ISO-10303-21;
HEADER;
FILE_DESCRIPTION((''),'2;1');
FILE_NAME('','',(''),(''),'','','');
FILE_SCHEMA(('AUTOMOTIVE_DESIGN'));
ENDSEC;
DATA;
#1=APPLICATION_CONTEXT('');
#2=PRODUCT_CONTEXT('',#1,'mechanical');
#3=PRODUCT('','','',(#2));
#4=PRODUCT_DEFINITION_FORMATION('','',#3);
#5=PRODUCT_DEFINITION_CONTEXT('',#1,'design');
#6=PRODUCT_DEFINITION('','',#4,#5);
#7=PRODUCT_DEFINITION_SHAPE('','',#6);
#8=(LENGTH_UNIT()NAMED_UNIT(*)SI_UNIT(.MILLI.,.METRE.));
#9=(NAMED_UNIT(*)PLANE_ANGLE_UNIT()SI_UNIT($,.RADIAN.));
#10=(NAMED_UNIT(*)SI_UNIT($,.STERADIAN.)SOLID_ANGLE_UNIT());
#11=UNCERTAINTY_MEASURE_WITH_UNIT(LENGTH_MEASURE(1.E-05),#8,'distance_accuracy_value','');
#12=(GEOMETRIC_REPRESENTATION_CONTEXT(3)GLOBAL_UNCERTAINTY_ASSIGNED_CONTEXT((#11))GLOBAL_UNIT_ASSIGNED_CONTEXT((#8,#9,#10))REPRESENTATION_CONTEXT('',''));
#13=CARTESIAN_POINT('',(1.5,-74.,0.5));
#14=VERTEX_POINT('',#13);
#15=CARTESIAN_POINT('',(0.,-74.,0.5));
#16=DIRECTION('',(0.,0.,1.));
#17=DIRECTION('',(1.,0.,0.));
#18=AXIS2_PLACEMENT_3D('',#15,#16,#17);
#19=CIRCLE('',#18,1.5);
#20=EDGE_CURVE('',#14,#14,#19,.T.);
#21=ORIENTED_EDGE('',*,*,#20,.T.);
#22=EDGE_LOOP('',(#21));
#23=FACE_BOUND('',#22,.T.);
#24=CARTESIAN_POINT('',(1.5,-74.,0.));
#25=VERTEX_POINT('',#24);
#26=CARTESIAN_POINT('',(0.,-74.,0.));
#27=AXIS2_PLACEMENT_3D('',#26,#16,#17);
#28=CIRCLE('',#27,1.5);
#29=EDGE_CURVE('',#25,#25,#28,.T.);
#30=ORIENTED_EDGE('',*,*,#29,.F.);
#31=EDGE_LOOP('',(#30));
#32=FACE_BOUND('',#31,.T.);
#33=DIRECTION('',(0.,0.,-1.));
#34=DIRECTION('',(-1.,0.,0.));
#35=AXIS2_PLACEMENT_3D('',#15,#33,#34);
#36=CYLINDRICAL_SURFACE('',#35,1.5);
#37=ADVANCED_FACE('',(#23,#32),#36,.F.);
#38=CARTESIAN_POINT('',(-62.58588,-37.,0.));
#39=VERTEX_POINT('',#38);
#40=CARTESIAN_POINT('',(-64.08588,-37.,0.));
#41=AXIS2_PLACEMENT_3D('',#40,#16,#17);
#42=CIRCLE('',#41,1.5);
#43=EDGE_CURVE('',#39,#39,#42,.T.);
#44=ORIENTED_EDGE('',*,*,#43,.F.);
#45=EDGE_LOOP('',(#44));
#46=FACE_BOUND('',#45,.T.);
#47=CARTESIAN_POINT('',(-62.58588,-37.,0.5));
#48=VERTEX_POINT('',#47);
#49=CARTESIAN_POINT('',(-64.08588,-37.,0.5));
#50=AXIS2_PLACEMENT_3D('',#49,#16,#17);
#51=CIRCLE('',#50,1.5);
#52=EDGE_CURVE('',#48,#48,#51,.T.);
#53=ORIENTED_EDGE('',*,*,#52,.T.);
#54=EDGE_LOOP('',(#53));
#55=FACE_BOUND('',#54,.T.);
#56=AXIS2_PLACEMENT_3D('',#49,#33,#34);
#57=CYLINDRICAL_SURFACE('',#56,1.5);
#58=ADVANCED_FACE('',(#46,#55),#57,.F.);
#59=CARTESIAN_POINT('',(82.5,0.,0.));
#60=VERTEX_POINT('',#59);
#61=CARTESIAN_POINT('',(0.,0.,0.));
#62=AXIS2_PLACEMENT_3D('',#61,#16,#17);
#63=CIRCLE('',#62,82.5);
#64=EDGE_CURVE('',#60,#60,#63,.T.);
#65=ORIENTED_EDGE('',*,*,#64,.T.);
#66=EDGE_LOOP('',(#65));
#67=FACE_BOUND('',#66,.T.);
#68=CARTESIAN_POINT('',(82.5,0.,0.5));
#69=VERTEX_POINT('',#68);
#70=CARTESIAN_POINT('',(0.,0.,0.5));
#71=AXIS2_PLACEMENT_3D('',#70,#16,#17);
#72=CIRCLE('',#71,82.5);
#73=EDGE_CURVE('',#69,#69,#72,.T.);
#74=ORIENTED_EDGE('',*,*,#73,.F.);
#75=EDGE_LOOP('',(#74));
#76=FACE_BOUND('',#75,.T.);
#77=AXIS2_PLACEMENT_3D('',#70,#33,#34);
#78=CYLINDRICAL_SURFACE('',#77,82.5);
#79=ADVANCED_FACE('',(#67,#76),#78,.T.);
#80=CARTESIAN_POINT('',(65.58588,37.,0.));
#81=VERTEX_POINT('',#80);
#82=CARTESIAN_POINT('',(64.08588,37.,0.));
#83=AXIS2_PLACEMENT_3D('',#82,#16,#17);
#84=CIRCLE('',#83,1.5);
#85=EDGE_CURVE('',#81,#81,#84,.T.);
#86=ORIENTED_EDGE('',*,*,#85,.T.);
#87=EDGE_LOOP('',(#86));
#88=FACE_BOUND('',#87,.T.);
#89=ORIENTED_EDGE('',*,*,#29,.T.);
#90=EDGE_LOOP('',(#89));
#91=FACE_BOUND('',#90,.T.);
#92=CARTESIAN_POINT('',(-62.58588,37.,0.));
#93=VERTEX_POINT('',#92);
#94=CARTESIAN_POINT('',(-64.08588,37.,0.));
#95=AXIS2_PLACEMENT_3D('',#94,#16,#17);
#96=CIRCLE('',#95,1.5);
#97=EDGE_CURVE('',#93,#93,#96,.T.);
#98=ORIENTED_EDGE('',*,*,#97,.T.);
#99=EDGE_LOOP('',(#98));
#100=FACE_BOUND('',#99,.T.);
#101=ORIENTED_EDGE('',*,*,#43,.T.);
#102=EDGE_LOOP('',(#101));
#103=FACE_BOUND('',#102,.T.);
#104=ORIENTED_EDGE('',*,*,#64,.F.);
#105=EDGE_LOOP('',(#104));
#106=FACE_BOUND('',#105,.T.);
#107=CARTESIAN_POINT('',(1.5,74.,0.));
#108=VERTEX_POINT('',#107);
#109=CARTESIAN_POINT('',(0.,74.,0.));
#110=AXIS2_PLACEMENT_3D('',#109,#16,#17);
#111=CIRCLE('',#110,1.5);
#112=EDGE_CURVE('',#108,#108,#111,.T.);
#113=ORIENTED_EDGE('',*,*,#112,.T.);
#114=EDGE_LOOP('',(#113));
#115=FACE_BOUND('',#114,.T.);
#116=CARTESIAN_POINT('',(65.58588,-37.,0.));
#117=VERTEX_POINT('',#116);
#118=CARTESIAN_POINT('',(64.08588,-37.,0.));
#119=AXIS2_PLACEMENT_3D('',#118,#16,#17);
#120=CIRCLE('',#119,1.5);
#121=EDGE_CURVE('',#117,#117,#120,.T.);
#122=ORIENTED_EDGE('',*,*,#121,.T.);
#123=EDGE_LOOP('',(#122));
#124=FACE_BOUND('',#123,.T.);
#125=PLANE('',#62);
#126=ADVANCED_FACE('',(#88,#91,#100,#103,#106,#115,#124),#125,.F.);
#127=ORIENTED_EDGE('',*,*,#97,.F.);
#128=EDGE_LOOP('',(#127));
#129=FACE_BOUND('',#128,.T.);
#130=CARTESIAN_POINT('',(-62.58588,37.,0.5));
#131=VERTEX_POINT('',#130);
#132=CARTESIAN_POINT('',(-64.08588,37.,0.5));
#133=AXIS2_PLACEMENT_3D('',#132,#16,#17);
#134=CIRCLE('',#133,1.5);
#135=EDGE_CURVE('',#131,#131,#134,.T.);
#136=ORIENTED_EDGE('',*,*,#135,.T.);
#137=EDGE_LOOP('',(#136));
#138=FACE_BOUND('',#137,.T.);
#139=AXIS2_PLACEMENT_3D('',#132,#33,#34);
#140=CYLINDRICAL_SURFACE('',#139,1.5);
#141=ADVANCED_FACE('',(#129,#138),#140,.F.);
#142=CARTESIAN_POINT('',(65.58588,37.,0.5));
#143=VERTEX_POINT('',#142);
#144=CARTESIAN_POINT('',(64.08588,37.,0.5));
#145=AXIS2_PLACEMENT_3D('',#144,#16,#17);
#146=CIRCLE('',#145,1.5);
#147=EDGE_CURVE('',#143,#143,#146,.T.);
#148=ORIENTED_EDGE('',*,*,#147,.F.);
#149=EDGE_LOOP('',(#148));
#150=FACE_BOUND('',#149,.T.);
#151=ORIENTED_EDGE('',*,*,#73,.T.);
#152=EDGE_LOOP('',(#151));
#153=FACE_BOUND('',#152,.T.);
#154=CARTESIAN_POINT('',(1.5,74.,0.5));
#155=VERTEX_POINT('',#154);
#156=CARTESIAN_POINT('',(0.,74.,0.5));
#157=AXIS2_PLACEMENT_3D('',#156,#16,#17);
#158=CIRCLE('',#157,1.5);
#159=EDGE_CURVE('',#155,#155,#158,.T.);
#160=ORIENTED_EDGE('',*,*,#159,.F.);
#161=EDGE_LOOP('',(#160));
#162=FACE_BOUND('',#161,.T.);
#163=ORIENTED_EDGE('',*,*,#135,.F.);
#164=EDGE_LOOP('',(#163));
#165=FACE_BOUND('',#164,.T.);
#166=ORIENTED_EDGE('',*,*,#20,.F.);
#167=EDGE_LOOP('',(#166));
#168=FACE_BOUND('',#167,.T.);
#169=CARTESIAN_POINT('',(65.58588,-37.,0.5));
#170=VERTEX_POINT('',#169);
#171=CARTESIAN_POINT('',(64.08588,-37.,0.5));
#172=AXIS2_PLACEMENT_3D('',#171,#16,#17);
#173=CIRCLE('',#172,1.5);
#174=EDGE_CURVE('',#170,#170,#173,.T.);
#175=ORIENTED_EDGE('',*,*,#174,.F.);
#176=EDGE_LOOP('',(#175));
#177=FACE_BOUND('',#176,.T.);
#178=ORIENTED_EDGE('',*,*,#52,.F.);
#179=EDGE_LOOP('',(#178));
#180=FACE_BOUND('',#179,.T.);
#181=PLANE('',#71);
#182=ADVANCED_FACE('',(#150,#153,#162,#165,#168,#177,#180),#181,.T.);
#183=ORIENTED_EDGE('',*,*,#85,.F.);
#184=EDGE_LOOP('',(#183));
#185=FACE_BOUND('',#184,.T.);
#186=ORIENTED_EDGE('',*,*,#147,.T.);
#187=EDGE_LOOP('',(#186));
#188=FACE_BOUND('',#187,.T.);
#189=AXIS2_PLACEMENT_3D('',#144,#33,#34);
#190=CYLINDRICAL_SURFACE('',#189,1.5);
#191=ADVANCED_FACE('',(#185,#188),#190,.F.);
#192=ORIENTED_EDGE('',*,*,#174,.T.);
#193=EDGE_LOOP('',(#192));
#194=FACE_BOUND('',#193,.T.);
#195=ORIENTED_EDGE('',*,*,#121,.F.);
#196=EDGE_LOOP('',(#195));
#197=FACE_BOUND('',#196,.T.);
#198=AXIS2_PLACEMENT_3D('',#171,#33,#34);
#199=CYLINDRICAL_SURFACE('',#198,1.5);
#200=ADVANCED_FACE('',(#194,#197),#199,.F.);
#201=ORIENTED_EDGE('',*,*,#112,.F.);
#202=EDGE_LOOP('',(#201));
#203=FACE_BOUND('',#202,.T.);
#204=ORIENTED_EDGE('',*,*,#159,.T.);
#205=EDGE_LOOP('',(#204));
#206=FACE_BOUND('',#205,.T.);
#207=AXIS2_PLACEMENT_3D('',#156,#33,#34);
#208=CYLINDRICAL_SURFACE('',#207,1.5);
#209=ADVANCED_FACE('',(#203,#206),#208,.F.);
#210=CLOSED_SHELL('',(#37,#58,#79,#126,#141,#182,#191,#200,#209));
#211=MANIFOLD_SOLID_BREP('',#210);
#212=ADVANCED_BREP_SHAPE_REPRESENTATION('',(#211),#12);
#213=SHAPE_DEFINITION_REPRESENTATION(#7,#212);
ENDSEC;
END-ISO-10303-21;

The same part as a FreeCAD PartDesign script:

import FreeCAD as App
import Part
import Sketcher
from FreeCAD import Vector

doc = App.newDocument("Part")
params = doc.addObject("Spreadsheet::Sheet", "Params")
for row, (alias, value) in enumerate([
    ("sketch1_diameter", "165 mm"),
    ("sketch1_diameter2", "3 mm"),
    ("pad1_length", "0.5 mm"),
], start=1):
    params.set(f"A{row}", alias)
    params.set(f"B{row}", "=" + value)
    params.setAlias(f"B{row}", alias)

body = doc.addObject("PartDesign::Body", "Body")

# Sketch on XY plane
sketch1 = body.newObject("Sketcher::SketchObject", "Sketch")
sketch1.AttachmentSupport = (doc.getObject("XY_Plane"), [""])
sketch1.MapMode = "FlatFace"
sketch1.addGeometry(Part.Circle(Vector(0, 0, 0), Vector(0, 0, 1), 82.5), False)
sketch1.addGeometry(Part.Circle(Vector(-64.1, -37, 0), Vector(0, 0, 1), 1.5), False)
sketch1.addGeometry(Part.Circle(Vector(0, -74, 0), Vector(0, 0, 1), 1.5), False)
sketch1.addGeometry(Part.Circle(Vector(64.1, -37, 0), Vector(0, 0, 1), 1.5), False)
sketch1.addGeometry(Part.Circle(Vector(-64.1, 37, 0), Vector(0, 0, 1), 1.5), False)
sketch1.addGeometry(Part.Circle(Vector(64.1, 37, 0), Vector(0, 0, 1), 1.5), False)
sketch1.addGeometry(Part.Circle(Vector(0, 74, 0), Vector(0, 0, 1), 1.5), False)
sketch1.addConstraint(Sketcher.Constraint("Coincident", 0, 3, -1, 1))
sketch1.addConstraint(Sketcher.Constraint("Equal", 1, 2))
sketch1.addConstraint(Sketcher.Constraint("Equal", 2, 3))
sketch1.addConstraint(Sketcher.Constraint("Equal", 3, 4))
sketch1.addConstraint(Sketcher.Constraint("Equal", 4, 5))
sketch1.addConstraint(Sketcher.Constraint("Equal", 5, 6))
sketch1.addConstraint(Sketcher.Constraint("Symmetric", 3, 3, 4, 3, -1, 1))
sketch1.addConstraint(Sketcher.Constraint("Symmetric", 1, 3, 5, 3, -1, 1))
sketch1.addConstraint(Sketcher.Constraint("Symmetric", 2, 3, 6, 3, -1, 1))
sketch1.addConstraint(Sketcher.Constraint("Symmetric", 1, 3, 3, 3, -2))
sketch1.addConstraint(Sketcher.Constraint("PointOnObject", 2, 3, -2))
sketch1.addConstraint(Sketcher.Constraint("Diameter", 0, 165.0))
sketch1.addConstraint(Sketcher.Constraint("Diameter", 1, 3.0))
sketch1.addConstraint(Sketcher.Constraint("DistanceY", 1, 3, -1, 1, 37.0))
sketch1.addConstraint(Sketcher.Constraint("DistanceY", 2, 3, -1, 1, 74.0))
sketch1.addConstraint(Sketcher.Constraint("DistanceX", 1, 3, -1, 1, 64.08588))
sketch1.setExpression("Constraints[11]", "Params.sketch1_diameter")
sketch1.setExpression("Constraints[12]", "Params.sketch1_diameter2")
pad1 = body.newObject("PartDesign::Pad", "Pad")
pad1.Profile = sketch1
pad1.setExpression("Length", "Params.pad1_length")

doc.recompute()
